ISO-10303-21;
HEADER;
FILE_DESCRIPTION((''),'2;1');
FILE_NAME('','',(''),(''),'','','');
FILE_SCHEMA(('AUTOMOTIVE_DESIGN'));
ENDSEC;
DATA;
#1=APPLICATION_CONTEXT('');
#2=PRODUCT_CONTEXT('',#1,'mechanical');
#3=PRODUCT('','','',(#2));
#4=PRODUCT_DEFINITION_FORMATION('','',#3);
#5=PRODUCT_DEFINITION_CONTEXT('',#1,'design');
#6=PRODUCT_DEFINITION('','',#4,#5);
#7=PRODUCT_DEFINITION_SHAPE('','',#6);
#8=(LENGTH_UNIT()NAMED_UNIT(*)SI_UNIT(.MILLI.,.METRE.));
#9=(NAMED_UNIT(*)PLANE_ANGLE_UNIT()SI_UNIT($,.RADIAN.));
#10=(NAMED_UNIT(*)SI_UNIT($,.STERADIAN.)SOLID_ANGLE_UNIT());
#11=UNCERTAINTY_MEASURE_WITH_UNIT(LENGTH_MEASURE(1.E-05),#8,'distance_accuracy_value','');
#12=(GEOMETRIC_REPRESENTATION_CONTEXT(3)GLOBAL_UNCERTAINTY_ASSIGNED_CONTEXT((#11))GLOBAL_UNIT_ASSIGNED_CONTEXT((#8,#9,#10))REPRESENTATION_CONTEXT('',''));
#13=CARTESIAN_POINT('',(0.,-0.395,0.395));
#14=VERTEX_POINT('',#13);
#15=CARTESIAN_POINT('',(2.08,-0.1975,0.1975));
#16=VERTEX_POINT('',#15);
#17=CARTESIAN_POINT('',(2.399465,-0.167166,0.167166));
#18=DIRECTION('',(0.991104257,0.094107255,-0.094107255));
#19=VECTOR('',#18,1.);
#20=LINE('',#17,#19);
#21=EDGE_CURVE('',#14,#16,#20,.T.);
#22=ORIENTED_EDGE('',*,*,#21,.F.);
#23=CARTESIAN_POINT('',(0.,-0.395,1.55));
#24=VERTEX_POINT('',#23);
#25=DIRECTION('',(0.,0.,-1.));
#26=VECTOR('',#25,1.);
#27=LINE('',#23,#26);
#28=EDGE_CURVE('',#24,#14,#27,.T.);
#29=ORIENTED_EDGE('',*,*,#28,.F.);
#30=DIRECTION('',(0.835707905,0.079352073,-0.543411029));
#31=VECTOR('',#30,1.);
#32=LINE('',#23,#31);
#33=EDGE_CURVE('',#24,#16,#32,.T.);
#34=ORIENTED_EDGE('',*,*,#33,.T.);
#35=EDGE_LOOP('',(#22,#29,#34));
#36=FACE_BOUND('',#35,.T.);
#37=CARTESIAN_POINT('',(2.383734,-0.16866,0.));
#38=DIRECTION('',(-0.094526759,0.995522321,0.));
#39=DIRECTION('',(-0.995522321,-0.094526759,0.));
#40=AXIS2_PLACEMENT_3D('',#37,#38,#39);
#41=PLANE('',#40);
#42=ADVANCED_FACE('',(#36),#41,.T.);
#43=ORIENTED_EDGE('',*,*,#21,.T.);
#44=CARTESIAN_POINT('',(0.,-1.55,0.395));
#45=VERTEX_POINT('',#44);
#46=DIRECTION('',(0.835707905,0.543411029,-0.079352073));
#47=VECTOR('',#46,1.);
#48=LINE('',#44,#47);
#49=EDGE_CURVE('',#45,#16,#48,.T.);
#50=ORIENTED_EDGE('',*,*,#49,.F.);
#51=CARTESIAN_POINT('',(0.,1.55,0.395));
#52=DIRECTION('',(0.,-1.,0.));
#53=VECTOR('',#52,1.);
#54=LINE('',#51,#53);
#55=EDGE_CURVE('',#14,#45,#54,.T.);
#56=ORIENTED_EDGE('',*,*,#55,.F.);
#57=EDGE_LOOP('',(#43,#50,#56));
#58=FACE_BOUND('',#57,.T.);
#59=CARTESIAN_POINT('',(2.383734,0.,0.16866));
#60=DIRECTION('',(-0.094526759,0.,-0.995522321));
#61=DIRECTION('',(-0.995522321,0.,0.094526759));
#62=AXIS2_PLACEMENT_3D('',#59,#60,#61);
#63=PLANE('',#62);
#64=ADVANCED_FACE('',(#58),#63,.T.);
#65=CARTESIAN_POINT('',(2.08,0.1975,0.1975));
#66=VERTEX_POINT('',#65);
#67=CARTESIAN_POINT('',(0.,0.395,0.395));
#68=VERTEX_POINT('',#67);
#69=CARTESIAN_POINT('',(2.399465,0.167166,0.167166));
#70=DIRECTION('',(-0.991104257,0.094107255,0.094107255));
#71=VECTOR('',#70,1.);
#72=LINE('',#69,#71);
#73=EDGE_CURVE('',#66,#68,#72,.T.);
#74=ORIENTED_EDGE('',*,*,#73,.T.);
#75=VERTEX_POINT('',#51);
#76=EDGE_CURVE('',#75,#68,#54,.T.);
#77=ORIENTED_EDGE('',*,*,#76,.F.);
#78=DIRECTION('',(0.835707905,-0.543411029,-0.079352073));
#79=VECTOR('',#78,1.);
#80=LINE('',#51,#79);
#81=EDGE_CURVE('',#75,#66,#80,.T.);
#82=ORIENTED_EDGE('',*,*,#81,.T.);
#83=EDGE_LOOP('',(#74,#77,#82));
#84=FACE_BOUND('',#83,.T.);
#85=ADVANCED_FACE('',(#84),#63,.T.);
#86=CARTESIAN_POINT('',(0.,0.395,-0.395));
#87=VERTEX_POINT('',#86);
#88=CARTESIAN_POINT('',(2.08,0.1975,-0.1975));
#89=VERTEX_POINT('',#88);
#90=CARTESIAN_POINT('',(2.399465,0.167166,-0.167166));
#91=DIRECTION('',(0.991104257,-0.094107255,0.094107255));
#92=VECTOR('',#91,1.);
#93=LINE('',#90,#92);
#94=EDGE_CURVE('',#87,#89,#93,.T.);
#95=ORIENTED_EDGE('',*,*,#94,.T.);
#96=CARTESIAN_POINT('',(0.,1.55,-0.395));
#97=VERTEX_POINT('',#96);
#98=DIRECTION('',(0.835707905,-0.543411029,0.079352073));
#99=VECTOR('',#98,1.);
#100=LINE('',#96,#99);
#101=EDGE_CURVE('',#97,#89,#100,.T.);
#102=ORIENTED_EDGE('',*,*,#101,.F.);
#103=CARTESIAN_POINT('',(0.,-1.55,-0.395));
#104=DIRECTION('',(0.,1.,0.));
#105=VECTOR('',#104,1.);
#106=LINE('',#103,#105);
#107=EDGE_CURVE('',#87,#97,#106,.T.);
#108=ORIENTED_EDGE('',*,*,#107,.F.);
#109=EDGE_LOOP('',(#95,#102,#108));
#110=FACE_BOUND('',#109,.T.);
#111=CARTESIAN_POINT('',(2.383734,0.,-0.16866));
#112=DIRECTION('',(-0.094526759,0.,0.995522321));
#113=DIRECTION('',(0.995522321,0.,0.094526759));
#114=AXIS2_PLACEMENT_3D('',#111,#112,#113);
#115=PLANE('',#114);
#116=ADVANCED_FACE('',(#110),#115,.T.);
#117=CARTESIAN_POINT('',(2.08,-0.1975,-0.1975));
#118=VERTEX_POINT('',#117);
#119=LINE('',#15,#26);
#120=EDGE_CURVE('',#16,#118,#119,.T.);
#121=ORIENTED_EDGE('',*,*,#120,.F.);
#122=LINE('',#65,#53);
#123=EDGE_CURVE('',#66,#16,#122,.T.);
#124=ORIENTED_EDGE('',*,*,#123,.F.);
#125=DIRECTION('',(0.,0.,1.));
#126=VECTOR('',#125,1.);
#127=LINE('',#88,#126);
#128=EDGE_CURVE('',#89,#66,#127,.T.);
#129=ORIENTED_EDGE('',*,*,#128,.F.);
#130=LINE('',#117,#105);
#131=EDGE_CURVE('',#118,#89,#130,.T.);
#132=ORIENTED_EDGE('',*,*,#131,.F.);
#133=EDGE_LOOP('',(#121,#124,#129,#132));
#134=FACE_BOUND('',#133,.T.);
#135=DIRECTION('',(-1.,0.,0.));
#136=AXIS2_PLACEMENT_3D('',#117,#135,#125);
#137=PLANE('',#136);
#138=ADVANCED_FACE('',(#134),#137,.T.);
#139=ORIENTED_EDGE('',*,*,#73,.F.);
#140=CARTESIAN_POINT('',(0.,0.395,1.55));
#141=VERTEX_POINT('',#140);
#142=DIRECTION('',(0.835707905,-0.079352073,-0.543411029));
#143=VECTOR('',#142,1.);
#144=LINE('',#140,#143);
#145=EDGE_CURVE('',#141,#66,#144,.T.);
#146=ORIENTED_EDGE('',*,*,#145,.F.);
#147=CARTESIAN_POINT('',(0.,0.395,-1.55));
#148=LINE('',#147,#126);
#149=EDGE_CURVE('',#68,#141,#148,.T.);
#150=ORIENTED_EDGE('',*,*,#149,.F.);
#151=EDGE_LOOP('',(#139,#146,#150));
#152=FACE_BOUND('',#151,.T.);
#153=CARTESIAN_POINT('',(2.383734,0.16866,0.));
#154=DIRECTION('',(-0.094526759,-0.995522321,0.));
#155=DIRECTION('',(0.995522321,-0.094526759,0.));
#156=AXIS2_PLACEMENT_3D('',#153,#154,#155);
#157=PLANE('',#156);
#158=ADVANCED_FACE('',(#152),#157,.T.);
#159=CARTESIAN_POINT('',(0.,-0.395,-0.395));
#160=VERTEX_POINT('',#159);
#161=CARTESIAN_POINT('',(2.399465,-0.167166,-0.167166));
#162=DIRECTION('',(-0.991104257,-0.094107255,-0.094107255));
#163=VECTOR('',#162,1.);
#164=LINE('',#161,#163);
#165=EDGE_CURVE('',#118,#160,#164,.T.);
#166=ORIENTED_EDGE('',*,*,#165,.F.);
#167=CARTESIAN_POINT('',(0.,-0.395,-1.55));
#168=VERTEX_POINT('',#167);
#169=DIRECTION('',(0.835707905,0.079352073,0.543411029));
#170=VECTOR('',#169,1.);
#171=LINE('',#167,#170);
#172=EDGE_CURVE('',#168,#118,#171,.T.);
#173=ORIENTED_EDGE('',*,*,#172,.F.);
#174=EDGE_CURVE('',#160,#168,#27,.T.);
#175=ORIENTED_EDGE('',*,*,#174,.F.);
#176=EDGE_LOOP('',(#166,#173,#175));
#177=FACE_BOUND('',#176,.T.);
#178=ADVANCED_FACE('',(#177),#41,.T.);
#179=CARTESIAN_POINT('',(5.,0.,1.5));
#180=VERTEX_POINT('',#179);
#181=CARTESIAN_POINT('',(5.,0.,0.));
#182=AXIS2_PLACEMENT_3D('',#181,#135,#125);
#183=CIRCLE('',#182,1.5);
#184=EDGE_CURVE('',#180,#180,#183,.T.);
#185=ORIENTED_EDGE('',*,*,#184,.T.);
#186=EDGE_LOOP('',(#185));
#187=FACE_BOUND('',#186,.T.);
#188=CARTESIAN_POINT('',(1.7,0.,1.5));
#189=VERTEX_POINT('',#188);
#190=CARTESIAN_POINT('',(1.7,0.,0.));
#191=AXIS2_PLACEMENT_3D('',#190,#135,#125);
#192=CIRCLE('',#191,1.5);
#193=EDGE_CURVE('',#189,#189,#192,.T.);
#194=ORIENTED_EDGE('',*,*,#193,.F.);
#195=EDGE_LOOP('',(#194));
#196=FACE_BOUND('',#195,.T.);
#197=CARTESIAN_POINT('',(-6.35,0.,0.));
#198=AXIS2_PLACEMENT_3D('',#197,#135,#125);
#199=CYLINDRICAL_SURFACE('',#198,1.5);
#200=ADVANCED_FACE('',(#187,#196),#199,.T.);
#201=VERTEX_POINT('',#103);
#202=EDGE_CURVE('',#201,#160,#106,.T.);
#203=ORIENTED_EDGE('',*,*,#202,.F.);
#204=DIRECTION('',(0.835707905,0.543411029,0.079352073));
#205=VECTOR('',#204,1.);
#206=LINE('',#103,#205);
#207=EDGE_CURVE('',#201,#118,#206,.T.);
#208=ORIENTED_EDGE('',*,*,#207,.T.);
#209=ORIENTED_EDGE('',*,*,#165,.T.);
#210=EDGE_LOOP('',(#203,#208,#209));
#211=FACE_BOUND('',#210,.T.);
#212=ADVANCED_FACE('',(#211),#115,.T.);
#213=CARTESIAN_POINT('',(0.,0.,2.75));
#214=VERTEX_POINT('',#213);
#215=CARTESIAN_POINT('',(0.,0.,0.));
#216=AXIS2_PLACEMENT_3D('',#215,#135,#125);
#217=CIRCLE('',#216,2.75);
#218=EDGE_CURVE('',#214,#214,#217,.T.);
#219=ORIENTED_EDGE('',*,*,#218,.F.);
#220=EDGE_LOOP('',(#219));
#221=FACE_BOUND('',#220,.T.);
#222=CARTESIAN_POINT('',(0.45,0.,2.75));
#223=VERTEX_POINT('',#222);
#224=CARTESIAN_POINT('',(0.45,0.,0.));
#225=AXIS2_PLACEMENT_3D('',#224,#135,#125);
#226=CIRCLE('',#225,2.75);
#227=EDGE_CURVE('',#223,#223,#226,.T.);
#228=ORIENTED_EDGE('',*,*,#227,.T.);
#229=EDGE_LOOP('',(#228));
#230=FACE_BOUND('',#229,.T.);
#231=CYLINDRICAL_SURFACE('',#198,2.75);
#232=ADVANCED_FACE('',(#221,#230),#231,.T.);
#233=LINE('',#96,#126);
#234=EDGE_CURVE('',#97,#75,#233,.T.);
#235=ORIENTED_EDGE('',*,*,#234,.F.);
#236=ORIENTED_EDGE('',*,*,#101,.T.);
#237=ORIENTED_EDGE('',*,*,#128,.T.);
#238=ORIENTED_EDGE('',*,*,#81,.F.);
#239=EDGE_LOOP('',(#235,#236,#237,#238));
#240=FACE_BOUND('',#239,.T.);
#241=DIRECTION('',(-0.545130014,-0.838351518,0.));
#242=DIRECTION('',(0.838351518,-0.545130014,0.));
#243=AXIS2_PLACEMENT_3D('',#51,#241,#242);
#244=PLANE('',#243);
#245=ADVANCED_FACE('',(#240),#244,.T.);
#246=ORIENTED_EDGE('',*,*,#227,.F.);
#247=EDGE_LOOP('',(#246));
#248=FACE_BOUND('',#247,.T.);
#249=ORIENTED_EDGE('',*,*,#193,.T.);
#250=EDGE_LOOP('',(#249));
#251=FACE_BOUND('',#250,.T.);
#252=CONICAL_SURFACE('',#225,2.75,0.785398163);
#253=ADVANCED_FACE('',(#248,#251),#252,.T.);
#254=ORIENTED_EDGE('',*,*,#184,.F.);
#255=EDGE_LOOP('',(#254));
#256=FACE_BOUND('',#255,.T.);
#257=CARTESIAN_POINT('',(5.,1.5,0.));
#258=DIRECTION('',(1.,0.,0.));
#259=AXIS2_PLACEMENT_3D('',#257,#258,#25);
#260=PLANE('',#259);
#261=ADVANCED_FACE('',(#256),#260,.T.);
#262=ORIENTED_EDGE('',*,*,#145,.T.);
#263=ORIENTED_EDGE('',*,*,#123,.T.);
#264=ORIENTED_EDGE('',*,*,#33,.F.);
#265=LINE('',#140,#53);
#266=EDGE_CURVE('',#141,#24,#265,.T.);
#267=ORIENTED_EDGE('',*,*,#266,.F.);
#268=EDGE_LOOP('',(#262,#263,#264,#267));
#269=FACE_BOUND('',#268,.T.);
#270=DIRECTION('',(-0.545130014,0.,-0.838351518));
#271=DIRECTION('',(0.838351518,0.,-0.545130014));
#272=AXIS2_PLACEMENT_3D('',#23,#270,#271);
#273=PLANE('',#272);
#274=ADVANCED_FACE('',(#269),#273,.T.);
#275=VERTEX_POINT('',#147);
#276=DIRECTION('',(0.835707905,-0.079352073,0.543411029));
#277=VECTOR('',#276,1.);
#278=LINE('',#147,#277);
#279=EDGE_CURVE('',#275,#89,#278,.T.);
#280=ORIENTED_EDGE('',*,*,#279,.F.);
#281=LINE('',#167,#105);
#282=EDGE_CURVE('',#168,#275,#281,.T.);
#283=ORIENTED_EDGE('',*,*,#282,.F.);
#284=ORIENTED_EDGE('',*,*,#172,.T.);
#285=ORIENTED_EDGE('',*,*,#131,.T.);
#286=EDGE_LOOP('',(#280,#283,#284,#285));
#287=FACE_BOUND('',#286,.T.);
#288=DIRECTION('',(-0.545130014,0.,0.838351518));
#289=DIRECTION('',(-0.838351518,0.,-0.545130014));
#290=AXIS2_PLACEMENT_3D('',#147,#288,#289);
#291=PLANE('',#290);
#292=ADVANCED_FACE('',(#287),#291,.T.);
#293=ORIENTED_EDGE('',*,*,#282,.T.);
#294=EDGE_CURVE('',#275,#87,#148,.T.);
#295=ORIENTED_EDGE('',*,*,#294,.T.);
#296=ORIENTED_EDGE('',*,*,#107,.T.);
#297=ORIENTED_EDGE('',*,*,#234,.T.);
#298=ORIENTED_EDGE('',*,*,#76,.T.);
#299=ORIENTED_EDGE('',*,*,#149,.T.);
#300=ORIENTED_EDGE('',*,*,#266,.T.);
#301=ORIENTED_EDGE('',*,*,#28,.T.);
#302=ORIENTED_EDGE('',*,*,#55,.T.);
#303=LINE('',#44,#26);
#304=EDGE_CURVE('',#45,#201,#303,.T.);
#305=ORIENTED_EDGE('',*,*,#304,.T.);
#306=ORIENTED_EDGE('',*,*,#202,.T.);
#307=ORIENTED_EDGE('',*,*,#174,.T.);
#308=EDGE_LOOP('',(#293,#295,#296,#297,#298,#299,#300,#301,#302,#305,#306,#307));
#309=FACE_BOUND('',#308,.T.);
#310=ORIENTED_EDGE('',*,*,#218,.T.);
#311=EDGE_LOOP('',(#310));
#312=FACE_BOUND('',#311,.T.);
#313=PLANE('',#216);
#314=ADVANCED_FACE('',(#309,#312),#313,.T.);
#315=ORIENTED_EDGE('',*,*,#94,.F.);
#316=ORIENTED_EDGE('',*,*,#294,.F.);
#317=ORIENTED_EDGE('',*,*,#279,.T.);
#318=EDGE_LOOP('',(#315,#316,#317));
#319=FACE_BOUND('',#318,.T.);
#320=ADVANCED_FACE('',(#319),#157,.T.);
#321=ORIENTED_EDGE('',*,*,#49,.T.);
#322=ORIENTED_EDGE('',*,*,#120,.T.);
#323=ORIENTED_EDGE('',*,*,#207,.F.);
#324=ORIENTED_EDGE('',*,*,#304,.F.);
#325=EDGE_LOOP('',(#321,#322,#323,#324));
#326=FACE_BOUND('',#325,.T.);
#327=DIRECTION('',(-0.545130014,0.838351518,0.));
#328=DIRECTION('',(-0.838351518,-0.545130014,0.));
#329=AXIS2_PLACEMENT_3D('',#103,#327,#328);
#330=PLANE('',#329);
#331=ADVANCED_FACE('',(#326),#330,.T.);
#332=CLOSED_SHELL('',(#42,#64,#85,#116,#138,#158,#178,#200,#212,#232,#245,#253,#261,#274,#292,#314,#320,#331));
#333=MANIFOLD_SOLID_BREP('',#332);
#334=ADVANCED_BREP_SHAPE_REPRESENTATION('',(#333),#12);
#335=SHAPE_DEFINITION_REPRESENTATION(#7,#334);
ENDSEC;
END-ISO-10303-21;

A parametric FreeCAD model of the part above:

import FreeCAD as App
import Part
import Sketcher

V = App.Vector
Q = App.Units.Quantity

doc = App.newDocument("Part")
body = doc.addObject("PartDesign::Body", "Body")

# Sketch on XY plane
sketch1 = body.newObject("Sketcher::SketchObject", "Sketch")
sketch1.AttachmentSupport = (doc.getObject("XY_Plane"), [""])
sketch1.MapMode = "FlatFace"
sketch1.addGeometry([
    Part.LineSegment(V(0, 2.75, 0), V(0, 0, 0)),  # 0
    Part.LineSegment(V(0, 0, 0), V(5, 0, 0)),  # 1
    Part.LineSegment(V(5, 0, 0), V(5, 1.5, 0)),  # 2
    Part.LineSegment(V(5, 1.5, 0), V(1.7, 1.5, 0)),  # 3
    Part.LineSegment(V(1.7, 1.5, 0), V(0.45, 2.75, 0)),  # 4
    Part.LineSegment(V(0.45, 2.75, 0), V(0, 2.75, 0)),  # 5
], False)
sketch1.addConstraint([
    Sketcher.Constraint("Coincident", 0, 2, 1, 1),
    Sketcher.Constraint("Coincident", 1, 2, 2, 1),
    Sketcher.Constraint("Coincident", 2, 2, 3, 1),
    Sketcher.Constraint("Coincident", 3, 2, 4, 1),
    Sketcher.Constraint("Coincident", 4, 2, 5, 1),
    Sketcher.Constraint("Coincident", 5, 2, 0, 1),
    Sketcher.Constraint("Vertical", 0),
    Sketcher.Constraint("Horizontal", 1),
    Sketcher.Constraint("Vertical", 2),
    Sketcher.Constraint("Horizontal", 3),
    Sketcher.Constraint("Horizontal", 5),
    Sketcher.Constraint("Coincident", 0, 2, -1, 1),
    Sketcher.Constraint("DistanceX", 1, 1, 1, 2, 5.0),
    Sketcher.Constraint("Angle", 4, Q("135 deg")),
    Sketcher.Constraint("DistanceX", 3, 2, 3, 1, 3.3),
    Sketcher.Constraint("DistanceY", 2, 1, 2, 2, 1.5),
    Sketcher.Constraint("DistanceX", 5, 2, 5, 1, 0.45),
])
revolution = body.newObject("PartDesign::Revolution", "Revolution")
revolution.Profile = sketch1
revolution.ReferenceAxis = (sketch1, ["H_Axis"])
revolution.Angle = 360

# Sketch on YZ plane
sketch2 = body.newObject("Sketcher::SketchObject", "Sketch001")
sketch2.AttachmentSupport = (doc.getObject("YZ_Plane"), [""])
sketch2.MapMode = "FlatFace"
sketch2.addGeometry([
    Part.LineSegment(V(1.6, -0.4, 0), V(-1.6, -0.4, 0)),
    Part.LineSegment(V(-1.6, -0.4, 0), V(-1.6, 0.4, 0)),
    Part.LineSegment(V(-1.6, 0.4, 0), V(1.6, 0.4, 0)),
    Part.LineSegment(V(1.6, 0.4, 0), V(1.6, -0.4, 0)),
], False)
sketch2.addConstraint([
    Sketcher.Constraint("Coincident", 0, 2, 1, 1),
    Sketcher.Constraint("Coincident", 1, 2, 2, 1),
    Sketcher.Constraint("Coincident", 2, 2, 3, 1),
    Sketcher.Constraint("Coincident", 3, 2, 0, 1),
    Sketcher.Constraint("Horizontal", 0),
    Sketcher.Constraint("Vertical", 1),
    Sketcher.Constraint("Horizontal", 2),
    Sketcher.Constraint("Vertical", 3),
    Sketcher.Constraint("Symmetric", 0, 2, 2, 2, -1, 1),
    Sketcher.Constraint("DistanceX", 0, 2, 0, 1, 3.1),
    Sketcher.Constraint("DistanceY", 1, 1, 1, 2, 0.79),
])

# Sketch on YZ plane
sketch3 = body.newObject("Sketcher::SketchObject", "Sketch002")
sketch3.AttachmentSupport = (doc.getObject("YZ_Plane"), [""])
sketch3.MapMode = "FlatFace"
sketch3.AttachmentOffset = App.Placement(V(0, 0, 2.08), App.Rotation())
sketch3.addGeometry([
    Part.LineSegment(V(0.2, -0.2, 0), V(-0.2, -0.2, 0)),
    Part.LineSegment(V(-0.2, -0.2, 0), V(-0.2, 0.2, 0)),
    Part.LineSegment(V(-0.2, 0.2, 0), V(0.2, 0.2, 0)),
    Part.LineSegment(V(0.2, 0.2, 0), V(0.2, -0.2, 0)),
], False)
sketch3.addConstraint([
    Sketcher.Constraint("Coincident", 0, 2, 1, 1),
    Sketcher.Constraint("Coincident", 1, 2, 2, 1),
    Sketcher.Constraint("Coincident", 2, 2, 3, 1),
    Sketcher.Constraint("Coincident", 3, 2, 0, 1),
    Sketcher.Constraint("Horizontal", 0),
    Sketcher.Constraint("Vertical", 1),
    Sketcher.Constraint("Horizontal", 2),
    Sketcher.Constraint("Vertical", 3),
    Sketcher.Constraint("Symmetric", 0, 2, 2, 2, -1, 1),
    Sketcher.Constraint("Equal", 2, 1),
    Sketcher.Constraint("DistanceX", 0, 2, 0, 1, 0.395),
])

subtractiveloft = body.newObject("PartDesign::SubtractiveLoft", "SubtractiveLoft")
subtractiveloft.Profile = sketch2
subtractiveloft.Sections = [sketch3]
doc.recompute()

polarpattern = body.newObject("PartDesign::PolarPattern", "PolarPattern")
polarpattern.Originals = [subtractiveloft]
polarpattern.Axis = (doc.getObject("X_Axis"), [""])
polarpattern.Angle = 90
polarpattern.Occurrences = 2
body.Tip = polarpattern

doc.recompute()
